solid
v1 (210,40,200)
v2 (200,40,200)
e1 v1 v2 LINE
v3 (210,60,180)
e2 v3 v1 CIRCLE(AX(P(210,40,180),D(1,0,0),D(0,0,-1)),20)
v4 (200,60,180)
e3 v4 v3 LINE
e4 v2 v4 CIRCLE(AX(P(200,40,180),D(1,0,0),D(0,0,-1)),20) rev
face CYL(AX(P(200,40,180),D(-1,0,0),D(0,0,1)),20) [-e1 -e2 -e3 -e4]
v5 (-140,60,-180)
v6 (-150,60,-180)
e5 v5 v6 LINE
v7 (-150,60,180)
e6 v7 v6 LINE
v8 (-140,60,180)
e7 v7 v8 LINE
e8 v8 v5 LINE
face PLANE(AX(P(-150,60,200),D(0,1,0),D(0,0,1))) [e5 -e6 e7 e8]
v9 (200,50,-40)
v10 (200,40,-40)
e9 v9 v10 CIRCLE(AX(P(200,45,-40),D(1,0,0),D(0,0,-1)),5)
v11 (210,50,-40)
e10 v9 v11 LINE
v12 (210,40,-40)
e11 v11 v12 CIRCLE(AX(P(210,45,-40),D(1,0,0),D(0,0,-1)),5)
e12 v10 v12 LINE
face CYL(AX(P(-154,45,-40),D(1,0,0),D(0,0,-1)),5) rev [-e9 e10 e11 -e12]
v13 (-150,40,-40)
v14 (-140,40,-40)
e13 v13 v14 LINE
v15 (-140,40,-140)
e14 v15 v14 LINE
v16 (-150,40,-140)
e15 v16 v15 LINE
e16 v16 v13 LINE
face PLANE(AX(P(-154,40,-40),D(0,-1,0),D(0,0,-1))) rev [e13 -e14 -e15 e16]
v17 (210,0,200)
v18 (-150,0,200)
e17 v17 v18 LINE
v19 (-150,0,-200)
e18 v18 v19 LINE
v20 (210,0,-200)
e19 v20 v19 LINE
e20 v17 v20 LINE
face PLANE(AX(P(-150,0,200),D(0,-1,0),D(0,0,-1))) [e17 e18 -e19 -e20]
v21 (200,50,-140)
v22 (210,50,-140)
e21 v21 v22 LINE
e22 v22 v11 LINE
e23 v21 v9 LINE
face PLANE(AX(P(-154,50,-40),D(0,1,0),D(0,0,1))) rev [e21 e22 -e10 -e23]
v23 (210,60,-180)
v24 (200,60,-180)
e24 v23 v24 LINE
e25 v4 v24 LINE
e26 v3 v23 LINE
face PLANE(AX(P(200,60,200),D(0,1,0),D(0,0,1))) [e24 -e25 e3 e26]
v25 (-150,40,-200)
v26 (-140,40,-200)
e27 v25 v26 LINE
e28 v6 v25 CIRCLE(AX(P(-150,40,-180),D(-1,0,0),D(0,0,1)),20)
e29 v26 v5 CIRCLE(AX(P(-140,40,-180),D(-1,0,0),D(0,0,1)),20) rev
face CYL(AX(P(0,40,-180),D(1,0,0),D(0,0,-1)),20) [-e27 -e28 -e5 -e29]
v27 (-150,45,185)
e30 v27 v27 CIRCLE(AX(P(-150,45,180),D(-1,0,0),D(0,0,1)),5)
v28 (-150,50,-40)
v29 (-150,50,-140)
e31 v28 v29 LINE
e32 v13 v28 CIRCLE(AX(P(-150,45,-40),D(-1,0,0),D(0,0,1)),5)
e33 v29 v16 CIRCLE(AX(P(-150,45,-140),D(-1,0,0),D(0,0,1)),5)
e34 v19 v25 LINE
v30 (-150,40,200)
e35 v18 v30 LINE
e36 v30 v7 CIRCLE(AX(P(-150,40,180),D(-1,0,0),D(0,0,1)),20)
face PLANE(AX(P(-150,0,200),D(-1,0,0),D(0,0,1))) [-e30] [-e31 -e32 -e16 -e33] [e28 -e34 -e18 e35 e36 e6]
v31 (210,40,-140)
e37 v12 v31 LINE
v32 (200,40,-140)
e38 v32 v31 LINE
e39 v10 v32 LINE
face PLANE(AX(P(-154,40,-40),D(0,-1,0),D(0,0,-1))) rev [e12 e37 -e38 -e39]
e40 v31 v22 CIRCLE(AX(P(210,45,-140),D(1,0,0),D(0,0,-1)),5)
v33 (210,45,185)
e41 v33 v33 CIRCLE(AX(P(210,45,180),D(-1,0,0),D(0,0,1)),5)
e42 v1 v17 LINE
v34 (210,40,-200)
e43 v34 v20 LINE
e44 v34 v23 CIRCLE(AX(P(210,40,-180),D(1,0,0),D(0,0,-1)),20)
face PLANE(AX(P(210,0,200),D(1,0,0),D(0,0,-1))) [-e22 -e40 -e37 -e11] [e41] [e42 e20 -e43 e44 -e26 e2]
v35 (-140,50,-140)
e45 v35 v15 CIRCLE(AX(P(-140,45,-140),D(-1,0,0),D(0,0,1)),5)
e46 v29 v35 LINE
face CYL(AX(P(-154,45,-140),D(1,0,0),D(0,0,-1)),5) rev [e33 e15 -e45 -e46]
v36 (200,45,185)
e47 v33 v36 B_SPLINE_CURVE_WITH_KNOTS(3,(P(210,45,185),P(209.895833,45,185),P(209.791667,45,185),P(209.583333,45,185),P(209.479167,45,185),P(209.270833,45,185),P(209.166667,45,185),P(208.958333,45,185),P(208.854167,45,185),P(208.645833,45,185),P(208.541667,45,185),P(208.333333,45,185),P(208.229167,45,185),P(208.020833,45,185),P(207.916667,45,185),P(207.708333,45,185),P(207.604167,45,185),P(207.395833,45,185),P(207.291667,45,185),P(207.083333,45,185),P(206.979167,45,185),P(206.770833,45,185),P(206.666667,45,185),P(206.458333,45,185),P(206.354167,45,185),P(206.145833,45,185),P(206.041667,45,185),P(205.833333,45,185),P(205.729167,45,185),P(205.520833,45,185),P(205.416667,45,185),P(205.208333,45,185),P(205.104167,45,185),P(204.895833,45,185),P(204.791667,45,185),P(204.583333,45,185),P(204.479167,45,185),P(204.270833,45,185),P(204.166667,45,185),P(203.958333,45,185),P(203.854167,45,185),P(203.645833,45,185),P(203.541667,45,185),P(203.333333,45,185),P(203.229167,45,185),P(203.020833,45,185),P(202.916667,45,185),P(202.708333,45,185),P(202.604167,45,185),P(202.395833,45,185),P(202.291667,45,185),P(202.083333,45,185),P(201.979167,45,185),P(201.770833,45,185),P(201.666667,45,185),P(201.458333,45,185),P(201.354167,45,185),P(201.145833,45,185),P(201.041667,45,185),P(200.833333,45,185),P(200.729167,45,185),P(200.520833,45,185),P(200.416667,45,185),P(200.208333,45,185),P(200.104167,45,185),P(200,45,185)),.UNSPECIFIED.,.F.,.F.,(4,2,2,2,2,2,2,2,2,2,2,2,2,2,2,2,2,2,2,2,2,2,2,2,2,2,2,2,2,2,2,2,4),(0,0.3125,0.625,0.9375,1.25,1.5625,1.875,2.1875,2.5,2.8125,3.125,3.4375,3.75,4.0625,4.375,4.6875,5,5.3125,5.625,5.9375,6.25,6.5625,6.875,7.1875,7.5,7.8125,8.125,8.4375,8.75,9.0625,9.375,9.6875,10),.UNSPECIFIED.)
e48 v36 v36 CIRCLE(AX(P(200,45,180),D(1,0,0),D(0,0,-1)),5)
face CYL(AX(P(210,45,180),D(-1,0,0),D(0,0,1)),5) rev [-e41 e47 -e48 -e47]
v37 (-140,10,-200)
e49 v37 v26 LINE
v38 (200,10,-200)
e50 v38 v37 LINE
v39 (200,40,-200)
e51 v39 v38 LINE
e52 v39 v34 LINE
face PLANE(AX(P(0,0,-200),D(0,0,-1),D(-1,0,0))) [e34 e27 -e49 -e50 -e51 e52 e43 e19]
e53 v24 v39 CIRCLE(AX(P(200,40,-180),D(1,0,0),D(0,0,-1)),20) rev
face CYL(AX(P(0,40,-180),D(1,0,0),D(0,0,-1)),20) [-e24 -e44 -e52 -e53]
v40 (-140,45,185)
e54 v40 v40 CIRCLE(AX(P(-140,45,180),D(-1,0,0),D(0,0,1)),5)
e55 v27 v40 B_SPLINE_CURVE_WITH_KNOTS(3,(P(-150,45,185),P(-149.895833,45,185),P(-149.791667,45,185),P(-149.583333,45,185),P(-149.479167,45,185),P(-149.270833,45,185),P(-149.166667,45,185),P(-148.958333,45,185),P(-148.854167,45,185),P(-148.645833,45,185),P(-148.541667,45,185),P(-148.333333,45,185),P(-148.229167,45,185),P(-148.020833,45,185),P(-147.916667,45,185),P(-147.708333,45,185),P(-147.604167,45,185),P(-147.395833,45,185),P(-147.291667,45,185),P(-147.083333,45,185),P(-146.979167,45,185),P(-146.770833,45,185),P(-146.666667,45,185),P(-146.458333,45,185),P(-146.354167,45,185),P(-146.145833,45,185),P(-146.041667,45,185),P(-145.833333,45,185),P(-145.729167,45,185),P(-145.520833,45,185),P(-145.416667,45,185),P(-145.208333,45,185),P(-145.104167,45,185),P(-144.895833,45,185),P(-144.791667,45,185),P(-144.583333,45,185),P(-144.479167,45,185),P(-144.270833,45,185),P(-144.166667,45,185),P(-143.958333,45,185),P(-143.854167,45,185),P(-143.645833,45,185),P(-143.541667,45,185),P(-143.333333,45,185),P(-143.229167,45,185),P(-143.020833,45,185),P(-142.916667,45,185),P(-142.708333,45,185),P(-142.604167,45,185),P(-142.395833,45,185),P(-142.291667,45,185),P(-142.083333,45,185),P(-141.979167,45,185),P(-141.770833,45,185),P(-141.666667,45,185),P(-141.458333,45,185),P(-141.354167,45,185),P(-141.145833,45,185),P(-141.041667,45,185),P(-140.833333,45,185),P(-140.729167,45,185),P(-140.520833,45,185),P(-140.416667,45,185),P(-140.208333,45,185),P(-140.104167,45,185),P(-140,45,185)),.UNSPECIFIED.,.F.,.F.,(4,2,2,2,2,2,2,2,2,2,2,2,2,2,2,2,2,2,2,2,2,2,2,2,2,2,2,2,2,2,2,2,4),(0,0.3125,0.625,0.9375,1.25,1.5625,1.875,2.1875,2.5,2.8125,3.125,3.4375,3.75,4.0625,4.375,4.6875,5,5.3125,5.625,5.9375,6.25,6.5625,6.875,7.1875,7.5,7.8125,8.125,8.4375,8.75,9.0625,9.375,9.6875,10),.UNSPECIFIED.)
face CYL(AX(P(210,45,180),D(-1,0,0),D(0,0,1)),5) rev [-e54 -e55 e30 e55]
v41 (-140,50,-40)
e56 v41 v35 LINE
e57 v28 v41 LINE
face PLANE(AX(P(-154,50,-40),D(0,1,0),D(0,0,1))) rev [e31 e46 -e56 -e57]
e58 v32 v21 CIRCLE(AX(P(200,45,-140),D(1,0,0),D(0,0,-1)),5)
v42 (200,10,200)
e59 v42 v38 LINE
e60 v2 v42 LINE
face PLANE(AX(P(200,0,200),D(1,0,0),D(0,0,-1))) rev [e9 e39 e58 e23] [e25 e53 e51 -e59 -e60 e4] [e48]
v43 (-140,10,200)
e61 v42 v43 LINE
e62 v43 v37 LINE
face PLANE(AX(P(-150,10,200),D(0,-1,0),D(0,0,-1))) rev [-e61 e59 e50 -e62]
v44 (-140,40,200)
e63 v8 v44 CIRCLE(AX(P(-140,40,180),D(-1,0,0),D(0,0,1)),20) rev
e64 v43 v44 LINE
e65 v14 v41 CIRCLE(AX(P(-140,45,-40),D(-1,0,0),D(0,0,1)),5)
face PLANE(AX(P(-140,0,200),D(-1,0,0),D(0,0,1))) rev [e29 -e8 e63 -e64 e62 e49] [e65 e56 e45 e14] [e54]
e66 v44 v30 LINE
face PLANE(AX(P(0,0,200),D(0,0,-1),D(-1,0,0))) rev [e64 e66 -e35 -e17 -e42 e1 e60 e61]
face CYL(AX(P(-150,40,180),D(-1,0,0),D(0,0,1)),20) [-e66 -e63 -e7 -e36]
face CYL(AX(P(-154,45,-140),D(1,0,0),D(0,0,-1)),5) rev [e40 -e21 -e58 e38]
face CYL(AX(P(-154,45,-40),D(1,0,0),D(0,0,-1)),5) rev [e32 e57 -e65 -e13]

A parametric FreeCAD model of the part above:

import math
import FreeCAD as App
import Part
import Sketcher

V = App.Vector
Q = App.Units.Quantity


def edges_at(feature, points):
    """Names of the edges that pass closest to the given points."""
    edges = feature.Shape.Edges
    near = lambda p: min(range(len(edges)), key=lambda i: edges[i].distToShape(Part.Vertex(*p))[0])
    return sorted({f"Edge{near(p) + 1}" for p in points})

doc = App.newDocument("Part")
body = doc.addObject("PartDesign::Body", "Body")

sketch1 = body.newObject("Sketcher::SketchObject", "Sketch")
sketch1.AttachmentSupport = (doc.getObject("XY_Plane"), [""])
sketch1.MapMode = "FlatFace"
sketch1.addGeometry([
    Part.LineSegment(V(-150, 60, 0), V(-150, 0, 0)),
    Part.LineSegment(V(-150, 0, 0), V(210, 0, 0)),
    Part.LineSegment(V(210, 0, 0), V(210, 60, 0)),
    Part.LineSegment(V(210, 60, 0), V(200, 60, 0)),
    Part.LineSegment(V(200, 60, 0), V(200, 10, 0)),
    Part.LineSegment(V(200, 10, 0), V(-140, 10, 0)),
    Part.LineSegment(V(-140, 10, 0), V(-140, 60, 0)),
    Part.LineSegment(V(-140, 60, 0), V(-150, 60, 0)),
], False)
sketch1.addConstraint([
    Sketcher.Constraint("Coincident", 0, 2, 1, 1),
    Sketcher.Constraint("Coincident", 1, 2, 2, 1),
    Sketcher.Constraint("Coincident", 2, 2, 3, 1),
    Sketcher.Constraint("Coincident", 3, 2, 4, 1),
    Sketcher.Constraint("Coincident", 4, 2, 5, 1),
    Sketcher.Constraint("Coincident", 5, 2, 6, 1),
    Sketcher.Constraint("Coincident", 6, 2, 7, 1),
    Sketcher.Constraint("Coincident", 7, 2, 0, 1),
    Sketcher.Constraint("Vertical", 0),
    Sketcher.Constraint("Horizontal", 1),
    Sketcher.Constraint("Vertical", 2),
    Sketcher.Constraint("Horizontal", 3),
    Sketcher.Constraint("Vertical", 4),
    Sketcher.Constraint("Horizontal", 5),
    Sketcher.Constraint("Vertical", 6),
    Sketcher.Constraint("Horizontal", 7),
    Sketcher.Constraint("PointOnObject", 0, 2, -1),
    Sketcher.Constraint("Horizontal", 3, 2, 6, 2),
    Sketcher.Constraint("Equal", 3, 7),
    Sketcher.Constraint("DistanceX", 1, 1, 1, 2, Q("360 mm")),
    Sketcher.Constraint("DistanceX", 3, 2, 3, 1, Q("10 mm")),
    Sketcher.Constraint("DistanceY", 0, 2, 0, 1, Q("60 mm")),
    Sketcher.Constraint("DistanceY", 4, 2, 4, 1, Q("50 mm")),
    Sketcher.Constraint("DistanceX", 0, 2, -1, 1, Q("150 mm")),
])
pad1 = body.newObject("PartDesign::Pad", "Pad")
pad1.Profile = sketch1
pad1.Length = 400
pad1.Midplane = True

sketch2 = body.newObject("Sketcher::SketchObject", "Sketch001")
sketch2.AttachmentSupport = (doc.getObject("YZ_Plane"), [""])
sketch2.MapMode = "FlatFace"
sketch2.AttachmentOffset = App.Placement(V(0, 0, 210), App.Rotation())
sketch2.addGeometry([
    Part.LineSegment(V(50, -140, 0), V(50, -40, 0)),
    Part.ArcOfCircle(Part.Circle(V(45, -40, 0), V(0, 0, 1), 5), math.radians(0), math.radians(180)),
    Part.LineSegment(V(40, -40, 0), V(40, -140, 0)),
    Part.ArcOfCircle(Part.Circle(V(45, -140, 0), V(0, 0, 1), 5), math.radians(180), math.radians(360)),
], False)
sketch2.addConstraint([
    Sketcher.Constraint("Tangent", 0, 2, 1, 1),
    Sketcher.Constraint("Tangent", 1, 2, 2, 1),
    Sketcher.Constraint("Tangent", 2, 2, 3, 1),
    Sketcher.Constraint("Tangent", 3, 2, 0, 1),
    Sketcher.Constraint("Vertical", 0),
    Sketcher.Constraint("Vertical", 2),
    Sketcher.Constraint("Radius", 1, Q("5 mm")),
    Sketcher.Constraint("DistanceY", 0, 1, 0, 2, Q("100 mm")),
    Sketcher.Constraint("DistanceX", -1, 1, 1, 3, Q("45 mm")),
    Sketcher.Constraint("DistanceY", 1, 3, -1, 1, Q("40 mm")),
])
pocket1 = body.newObject("PartDesign::Pocket", "Pocket")
pocket1.Profile = sketch2
pocket1.Length = 364
doc.recompute()

fillet = body.newObject("PartDesign::Fillet", "Fillet")
fillet.Base = (pocket1, edges_at(pocket1, [
    (205, 60, 200),
    (-145, 60, 200),
    (205, 60, -200),
    (-145, 60, -200),
]))
fillet.Radius = 20

sketch3 = body.newObject("Sketcher::SketchObject", "Sketch002")
sketch3.AttachmentSupport = (doc.getObject("YZ_Plane"), [""])
sketch3.MapMode = "FlatFace"
sketch3.AttachmentOffset = App.Placement(V(0, 0, -150), App.Rotation())
sketch3.addGeometry(Part.Circle(V(45, 180, 0), V(0, 0, 1), 5), False)
sketch3.addConstraint([
    Sketcher.Constraint("Diameter", 0, Q("10 mm")),
    Sketcher.Constraint("DistanceX", -1, 1, 0, 3, Q("45 mm")),
    Sketcher.Constraint("DistanceY", -1, 1, 0, 3, Q("180 mm")),
])
pocket2 = body.newObject("PartDesign::Pocket", "Pocket001")
pocket2.Profile = sketch3
pocket2.Type = "ThroughAll"
pocket2.Reversed = True

doc.recompute()
